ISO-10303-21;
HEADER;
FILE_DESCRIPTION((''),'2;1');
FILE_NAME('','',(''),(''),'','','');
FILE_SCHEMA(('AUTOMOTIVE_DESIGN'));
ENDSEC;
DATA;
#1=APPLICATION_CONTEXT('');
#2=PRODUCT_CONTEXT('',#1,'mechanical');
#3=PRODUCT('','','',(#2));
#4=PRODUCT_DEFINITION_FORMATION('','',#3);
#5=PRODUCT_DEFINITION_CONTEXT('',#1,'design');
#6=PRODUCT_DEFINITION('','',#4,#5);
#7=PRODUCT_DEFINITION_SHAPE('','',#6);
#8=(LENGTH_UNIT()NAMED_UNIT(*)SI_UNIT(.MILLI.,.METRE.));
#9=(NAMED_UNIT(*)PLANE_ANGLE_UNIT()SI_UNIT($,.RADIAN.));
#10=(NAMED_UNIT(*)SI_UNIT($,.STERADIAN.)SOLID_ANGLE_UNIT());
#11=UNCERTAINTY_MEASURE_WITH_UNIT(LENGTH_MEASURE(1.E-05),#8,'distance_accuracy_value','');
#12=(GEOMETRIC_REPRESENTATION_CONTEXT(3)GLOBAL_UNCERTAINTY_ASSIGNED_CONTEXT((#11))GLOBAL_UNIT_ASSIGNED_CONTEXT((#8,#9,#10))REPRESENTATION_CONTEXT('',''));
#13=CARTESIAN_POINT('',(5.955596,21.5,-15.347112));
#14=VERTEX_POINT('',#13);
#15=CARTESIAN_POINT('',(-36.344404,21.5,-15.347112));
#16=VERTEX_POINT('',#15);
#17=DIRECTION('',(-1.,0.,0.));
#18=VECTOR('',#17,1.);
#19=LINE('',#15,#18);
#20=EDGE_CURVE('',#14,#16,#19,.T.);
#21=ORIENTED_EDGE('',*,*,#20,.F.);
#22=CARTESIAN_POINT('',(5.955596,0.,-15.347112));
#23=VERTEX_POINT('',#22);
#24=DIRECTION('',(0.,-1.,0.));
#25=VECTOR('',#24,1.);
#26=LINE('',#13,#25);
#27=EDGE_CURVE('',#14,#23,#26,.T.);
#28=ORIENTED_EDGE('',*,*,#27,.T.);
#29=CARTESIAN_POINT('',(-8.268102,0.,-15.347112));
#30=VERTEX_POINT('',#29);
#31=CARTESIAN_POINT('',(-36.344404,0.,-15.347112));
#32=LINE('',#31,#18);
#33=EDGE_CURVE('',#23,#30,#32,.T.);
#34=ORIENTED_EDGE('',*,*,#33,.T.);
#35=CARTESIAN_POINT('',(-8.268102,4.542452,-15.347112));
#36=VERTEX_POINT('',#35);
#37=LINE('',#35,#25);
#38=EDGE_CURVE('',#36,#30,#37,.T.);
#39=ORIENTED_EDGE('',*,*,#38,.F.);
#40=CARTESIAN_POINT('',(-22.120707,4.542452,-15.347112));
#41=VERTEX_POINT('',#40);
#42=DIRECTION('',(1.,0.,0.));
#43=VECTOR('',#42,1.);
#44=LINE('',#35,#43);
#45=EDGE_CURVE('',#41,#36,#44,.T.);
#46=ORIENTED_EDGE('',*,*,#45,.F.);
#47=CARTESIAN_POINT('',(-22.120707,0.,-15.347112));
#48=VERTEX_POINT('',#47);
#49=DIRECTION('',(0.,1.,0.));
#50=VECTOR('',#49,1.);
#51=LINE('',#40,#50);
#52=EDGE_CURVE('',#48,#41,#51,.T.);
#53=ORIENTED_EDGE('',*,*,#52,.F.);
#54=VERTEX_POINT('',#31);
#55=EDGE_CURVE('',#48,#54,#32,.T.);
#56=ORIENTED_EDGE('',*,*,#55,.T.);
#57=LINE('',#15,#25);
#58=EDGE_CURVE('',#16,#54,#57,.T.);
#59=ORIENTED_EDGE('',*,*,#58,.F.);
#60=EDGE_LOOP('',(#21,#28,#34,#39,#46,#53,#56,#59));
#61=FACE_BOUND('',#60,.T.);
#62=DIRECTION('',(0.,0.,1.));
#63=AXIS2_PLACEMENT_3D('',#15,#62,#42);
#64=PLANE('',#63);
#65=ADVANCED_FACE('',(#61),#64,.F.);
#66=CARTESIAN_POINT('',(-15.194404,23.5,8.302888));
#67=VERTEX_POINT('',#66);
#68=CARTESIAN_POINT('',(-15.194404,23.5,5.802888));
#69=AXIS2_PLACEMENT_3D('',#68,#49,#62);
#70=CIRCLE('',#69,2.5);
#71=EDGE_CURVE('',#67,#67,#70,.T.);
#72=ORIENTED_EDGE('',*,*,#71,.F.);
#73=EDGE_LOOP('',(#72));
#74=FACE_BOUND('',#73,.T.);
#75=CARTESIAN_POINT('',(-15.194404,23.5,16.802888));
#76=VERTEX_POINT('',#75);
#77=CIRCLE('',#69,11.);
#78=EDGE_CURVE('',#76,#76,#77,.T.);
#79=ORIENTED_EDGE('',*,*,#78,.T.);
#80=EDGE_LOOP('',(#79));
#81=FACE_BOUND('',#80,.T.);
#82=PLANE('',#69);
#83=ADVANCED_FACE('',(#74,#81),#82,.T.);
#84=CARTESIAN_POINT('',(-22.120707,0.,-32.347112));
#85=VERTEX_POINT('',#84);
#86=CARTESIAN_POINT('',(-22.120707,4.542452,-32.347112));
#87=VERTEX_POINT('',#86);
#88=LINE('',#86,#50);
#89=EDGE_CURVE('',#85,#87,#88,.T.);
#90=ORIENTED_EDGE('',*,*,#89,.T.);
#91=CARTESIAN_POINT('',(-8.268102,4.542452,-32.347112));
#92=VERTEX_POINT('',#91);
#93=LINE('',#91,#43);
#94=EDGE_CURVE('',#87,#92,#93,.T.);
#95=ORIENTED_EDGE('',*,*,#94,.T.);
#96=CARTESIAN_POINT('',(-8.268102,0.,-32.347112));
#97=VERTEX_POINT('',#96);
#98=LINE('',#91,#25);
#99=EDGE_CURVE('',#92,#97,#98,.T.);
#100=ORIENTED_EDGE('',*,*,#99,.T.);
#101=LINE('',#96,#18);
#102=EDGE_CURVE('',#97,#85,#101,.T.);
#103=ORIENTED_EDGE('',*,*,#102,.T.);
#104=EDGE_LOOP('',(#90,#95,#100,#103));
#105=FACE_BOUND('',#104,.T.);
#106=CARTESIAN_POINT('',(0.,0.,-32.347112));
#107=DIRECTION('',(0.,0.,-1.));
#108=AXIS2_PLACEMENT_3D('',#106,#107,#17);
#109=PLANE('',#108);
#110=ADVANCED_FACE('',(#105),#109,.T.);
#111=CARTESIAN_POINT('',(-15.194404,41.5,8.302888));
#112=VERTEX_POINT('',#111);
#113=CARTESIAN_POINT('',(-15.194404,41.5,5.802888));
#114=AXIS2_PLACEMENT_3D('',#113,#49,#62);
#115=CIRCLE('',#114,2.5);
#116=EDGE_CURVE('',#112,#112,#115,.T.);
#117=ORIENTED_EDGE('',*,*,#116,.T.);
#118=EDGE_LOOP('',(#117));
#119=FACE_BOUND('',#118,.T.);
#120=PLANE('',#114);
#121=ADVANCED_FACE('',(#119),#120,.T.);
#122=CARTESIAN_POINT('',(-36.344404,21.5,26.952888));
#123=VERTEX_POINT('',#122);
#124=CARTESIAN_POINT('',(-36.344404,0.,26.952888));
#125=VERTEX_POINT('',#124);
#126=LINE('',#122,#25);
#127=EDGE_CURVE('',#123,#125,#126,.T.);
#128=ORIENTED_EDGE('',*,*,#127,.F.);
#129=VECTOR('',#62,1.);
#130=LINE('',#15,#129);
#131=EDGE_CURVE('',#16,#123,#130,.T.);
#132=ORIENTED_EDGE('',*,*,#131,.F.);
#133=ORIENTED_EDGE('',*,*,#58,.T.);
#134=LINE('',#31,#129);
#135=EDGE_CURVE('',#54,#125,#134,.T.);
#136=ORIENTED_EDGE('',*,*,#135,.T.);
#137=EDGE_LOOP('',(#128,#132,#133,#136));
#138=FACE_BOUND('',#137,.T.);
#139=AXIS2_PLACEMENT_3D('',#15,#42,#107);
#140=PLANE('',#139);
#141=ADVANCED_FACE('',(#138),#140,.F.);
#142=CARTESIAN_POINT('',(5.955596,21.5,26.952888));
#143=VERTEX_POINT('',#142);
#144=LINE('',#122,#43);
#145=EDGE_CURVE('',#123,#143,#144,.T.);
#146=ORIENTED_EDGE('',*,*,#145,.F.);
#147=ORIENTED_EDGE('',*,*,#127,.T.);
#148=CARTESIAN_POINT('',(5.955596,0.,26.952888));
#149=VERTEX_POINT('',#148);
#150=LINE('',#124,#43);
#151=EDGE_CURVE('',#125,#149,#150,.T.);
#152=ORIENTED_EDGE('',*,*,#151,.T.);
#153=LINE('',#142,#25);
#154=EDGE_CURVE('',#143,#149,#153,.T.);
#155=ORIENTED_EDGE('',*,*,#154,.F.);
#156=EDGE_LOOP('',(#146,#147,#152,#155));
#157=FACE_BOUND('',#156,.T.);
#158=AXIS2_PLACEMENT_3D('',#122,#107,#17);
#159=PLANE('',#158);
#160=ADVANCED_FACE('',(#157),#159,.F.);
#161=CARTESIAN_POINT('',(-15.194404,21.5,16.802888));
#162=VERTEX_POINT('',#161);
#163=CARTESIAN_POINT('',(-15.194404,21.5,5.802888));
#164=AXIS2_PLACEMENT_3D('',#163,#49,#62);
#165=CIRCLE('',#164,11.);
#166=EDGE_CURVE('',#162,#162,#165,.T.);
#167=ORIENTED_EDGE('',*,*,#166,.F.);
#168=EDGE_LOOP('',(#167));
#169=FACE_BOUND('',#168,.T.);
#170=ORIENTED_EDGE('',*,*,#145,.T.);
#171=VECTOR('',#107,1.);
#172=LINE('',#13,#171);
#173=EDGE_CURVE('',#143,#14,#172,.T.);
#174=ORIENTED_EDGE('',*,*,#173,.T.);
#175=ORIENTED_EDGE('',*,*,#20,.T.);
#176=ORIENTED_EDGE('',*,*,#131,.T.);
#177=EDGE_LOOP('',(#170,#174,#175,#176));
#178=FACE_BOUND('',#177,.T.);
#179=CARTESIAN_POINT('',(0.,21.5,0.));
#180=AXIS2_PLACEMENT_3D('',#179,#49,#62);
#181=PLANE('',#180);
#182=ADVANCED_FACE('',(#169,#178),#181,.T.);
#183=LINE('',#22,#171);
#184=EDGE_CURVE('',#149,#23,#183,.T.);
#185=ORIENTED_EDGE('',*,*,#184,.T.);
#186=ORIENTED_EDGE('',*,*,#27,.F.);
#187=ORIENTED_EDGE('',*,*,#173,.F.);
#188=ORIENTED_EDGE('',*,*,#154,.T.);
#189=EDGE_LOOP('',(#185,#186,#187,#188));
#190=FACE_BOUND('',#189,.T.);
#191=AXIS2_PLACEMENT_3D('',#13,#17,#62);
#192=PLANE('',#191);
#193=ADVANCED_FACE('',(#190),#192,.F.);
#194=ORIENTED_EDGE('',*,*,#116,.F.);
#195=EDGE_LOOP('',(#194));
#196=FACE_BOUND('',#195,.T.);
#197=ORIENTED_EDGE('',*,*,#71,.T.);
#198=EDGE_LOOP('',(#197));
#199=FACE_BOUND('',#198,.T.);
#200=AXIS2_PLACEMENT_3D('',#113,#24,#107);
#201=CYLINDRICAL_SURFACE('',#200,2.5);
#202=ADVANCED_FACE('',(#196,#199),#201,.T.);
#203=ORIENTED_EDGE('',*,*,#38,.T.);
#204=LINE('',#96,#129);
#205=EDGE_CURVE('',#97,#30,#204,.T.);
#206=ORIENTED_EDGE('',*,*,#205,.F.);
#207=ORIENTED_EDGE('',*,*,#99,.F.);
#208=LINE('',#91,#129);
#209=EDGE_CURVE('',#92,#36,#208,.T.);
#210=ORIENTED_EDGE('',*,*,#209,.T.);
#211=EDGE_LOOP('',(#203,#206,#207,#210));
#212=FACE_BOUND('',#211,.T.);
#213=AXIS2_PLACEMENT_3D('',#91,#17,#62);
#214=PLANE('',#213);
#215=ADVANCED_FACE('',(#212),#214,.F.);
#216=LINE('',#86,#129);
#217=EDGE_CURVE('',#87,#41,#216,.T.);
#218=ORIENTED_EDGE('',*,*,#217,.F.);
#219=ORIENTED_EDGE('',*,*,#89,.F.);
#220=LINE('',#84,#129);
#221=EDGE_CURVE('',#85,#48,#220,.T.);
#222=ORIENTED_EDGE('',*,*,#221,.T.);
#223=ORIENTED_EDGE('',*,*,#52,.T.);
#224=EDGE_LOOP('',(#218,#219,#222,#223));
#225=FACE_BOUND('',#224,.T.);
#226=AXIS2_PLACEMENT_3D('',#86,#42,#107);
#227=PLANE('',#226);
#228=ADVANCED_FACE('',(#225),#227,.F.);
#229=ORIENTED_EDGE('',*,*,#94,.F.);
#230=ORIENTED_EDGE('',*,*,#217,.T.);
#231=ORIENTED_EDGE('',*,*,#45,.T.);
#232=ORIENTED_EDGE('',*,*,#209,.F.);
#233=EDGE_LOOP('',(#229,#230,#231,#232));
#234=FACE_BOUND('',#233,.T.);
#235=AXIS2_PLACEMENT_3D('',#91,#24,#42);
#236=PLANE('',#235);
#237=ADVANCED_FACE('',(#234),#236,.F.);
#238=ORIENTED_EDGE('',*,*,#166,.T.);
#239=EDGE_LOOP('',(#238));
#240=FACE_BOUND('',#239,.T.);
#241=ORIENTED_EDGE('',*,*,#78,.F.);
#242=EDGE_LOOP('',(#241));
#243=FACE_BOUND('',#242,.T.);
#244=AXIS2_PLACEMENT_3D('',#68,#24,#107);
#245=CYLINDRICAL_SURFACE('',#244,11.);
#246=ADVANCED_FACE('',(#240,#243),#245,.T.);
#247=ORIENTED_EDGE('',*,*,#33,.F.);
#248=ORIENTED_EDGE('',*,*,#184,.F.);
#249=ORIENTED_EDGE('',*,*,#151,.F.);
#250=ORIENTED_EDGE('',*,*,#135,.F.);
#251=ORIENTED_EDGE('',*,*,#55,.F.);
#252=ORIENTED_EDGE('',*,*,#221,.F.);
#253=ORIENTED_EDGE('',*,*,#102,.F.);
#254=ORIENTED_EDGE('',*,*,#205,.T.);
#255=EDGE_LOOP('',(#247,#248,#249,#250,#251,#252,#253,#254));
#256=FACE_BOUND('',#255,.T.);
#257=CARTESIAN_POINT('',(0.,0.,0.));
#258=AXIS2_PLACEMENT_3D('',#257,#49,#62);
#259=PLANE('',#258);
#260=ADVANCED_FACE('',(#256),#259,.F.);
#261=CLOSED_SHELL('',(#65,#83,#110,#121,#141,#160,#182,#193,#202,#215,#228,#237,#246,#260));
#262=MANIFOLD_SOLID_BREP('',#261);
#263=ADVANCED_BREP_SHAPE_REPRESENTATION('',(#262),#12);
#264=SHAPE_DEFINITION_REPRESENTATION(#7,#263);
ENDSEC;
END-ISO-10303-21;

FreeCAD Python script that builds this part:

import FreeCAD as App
import Part
import Sketcher
Q = App.Units.Quantity


def add_polygon(sketch, points):
    """Adds a closed chain of lines whose ends are joined by coincident constraints."""
    first, n = sketch.GeometryCount, len(points)
    for a, b in zip(points, points[1:] + points[:1]):
        sketch.addGeometry(Part.LineSegment(App.Vector(*a, 0), App.Vector(*b, 0)), False)
    for i in range(n):
        sketch.addConstraint(Sketcher.Constraint("Coincident", first + i, 2, first + (i + 1) % n, 1))

doc = App.newDocument("Part")
body = doc.addObject("PartDesign::Body", "Body")

# Sketch on XZ plane
sketch1 = body.newObject("Sketcher::SketchObject", "Sketch")
sketch1.AttachmentSupport = (doc.getObject("XZ_Plane"), [""])
sketch1.MapMode = "FlatFace"
add_polygon(sketch1, [(-36, -15), (-36, 27), (6, 27), (6, -15)])  # lines 0-3
sketch1.addConstraint([
    Sketcher.Constraint("Vertical", 0),
    Sketcher.Constraint("Horizontal", 1),
    Sketcher.Constraint("Vertical", 2),
    Sketcher.Constraint("Horizontal", 3),
    Sketcher.Constraint("Equal", 3, 0),
    Sketcher.Constraint("DistanceX", 1, 1, 1, 2, Q("42.3 mm")),
    Sketcher.Constraint("DistanceY", -1, 1, 0, 2, Q("26.952888 mm")),
    Sketcher.Constraint("DistanceX", 0, 2, -1, 1, Q("36.344404 mm")),
])
pad1 = body.newObject("PartDesign::Pad", "Pad")
pad1.Profile = sketch1
pad1.Length = 21.5
pad1.Reversed = True

# Sketch on XZ plane
sketch2 = body.newObject("Sketcher::SketchObject", "Sketch001")
sketch2.AttachmentSupport = (doc.getObject("XZ_Plane"), [""])
sketch2.MapMode = "FlatFace"
sketch2.AttachmentOffset = App.Placement(App.Vector(0, 0, -21.5), App.Rotation())
sketch2.addGeometry(Part.Circle(App.Vector(-15, 6, 0), App.Vector(0, 0, 1), 11), False)
sketch2.addConstraint([
    Sketcher.Constraint("Diameter", 0, Q("22 mm")),
    Sketcher.Constraint("DistanceY", -1, 1, 0, 3, Q("5.802888 mm")),
    Sketcher.Constraint("DistanceX", 0, 3, -1, 1, Q("15.194404 mm")),
])
pad2 = body.newObject("PartDesign::Pad", "Pad001")
pad2.Profile = sketch2
pad2.Length = 2
pad2.Reversed = True

# Sketch on XZ plane
sketch3 = body.newObject("Sketcher::SketchObject", "Sketch002")
sketch3.AttachmentSupport = (doc.getObject("XZ_Plane"), [""])
sketch3.MapMode = "FlatFace"
sketch3.AttachmentOffset = App.Placement(App.Vector(0, 0, -23.5), App.Rotation())
sketch3.addGeometry(Part.Circle(App.Vector(-15.2, 5.8, 0), App.Vector(0, 0, 1), 2.5), False)
sketch3.addConstraint([
    Sketcher.Constraint("Diameter", 0, Q("5 mm")),
    Sketcher.Constraint("DistanceY", -1, 1, 0, 3, Q("5.802888 mm")),
    Sketcher.Constraint("DistanceX", 0, 3, -1, 1, Q("15.194404 mm")),
])
pad3 = body.newObject("PartDesign::Pad", "Pad002")
pad3.Profile = sketch3
pad3.Length = 18
pad3.Reversed = True

# Sketch on XY plane
sketch4 = body.newObject("Sketcher::SketchObject", "Sketch003")
sketch4.AttachmentSupport = (doc.getObject("XY_Plane"), [""])
sketch4.MapMode = "FlatFace"
sketch4.AttachmentOffset = App.Placement(App.Vector(0, 0, -15.347112), App.Rotation())
add_polygon(sketch4, [(-8.3, 4.5), (-8.3, 0), (-22.1, 0), (-22.1, 4.5)])  # lines 0-3
sketch4.addConstraint([
    Sketcher.Constraint("Vertical", 0),
    Sketcher.Constraint("Horizontal", 1),
    Sketcher.Constraint("Vertical", 2),
    Sketcher.Constraint("Horizontal", 3),
    Sketcher.Constraint("PointOnObject", 0, 2, -1),
    Sketcher.Constraint("DistanceY", 0, 2, 0, 1, Q("4.542452 mm")),
    Sketcher.Constraint("DistanceX", 0, 2, -1, 1, Q("8.268102 mm")),
    Sketcher.Constraint("DistanceX", 1, 2, 1, 1, Q("13.852605 mm")),
])
pad4 = body.newObject("PartDesign::Pad", "Pad003")
pad4.Profile = sketch4
pad4.Length = 17
pad4.Reversed = True

doc.recompute()
